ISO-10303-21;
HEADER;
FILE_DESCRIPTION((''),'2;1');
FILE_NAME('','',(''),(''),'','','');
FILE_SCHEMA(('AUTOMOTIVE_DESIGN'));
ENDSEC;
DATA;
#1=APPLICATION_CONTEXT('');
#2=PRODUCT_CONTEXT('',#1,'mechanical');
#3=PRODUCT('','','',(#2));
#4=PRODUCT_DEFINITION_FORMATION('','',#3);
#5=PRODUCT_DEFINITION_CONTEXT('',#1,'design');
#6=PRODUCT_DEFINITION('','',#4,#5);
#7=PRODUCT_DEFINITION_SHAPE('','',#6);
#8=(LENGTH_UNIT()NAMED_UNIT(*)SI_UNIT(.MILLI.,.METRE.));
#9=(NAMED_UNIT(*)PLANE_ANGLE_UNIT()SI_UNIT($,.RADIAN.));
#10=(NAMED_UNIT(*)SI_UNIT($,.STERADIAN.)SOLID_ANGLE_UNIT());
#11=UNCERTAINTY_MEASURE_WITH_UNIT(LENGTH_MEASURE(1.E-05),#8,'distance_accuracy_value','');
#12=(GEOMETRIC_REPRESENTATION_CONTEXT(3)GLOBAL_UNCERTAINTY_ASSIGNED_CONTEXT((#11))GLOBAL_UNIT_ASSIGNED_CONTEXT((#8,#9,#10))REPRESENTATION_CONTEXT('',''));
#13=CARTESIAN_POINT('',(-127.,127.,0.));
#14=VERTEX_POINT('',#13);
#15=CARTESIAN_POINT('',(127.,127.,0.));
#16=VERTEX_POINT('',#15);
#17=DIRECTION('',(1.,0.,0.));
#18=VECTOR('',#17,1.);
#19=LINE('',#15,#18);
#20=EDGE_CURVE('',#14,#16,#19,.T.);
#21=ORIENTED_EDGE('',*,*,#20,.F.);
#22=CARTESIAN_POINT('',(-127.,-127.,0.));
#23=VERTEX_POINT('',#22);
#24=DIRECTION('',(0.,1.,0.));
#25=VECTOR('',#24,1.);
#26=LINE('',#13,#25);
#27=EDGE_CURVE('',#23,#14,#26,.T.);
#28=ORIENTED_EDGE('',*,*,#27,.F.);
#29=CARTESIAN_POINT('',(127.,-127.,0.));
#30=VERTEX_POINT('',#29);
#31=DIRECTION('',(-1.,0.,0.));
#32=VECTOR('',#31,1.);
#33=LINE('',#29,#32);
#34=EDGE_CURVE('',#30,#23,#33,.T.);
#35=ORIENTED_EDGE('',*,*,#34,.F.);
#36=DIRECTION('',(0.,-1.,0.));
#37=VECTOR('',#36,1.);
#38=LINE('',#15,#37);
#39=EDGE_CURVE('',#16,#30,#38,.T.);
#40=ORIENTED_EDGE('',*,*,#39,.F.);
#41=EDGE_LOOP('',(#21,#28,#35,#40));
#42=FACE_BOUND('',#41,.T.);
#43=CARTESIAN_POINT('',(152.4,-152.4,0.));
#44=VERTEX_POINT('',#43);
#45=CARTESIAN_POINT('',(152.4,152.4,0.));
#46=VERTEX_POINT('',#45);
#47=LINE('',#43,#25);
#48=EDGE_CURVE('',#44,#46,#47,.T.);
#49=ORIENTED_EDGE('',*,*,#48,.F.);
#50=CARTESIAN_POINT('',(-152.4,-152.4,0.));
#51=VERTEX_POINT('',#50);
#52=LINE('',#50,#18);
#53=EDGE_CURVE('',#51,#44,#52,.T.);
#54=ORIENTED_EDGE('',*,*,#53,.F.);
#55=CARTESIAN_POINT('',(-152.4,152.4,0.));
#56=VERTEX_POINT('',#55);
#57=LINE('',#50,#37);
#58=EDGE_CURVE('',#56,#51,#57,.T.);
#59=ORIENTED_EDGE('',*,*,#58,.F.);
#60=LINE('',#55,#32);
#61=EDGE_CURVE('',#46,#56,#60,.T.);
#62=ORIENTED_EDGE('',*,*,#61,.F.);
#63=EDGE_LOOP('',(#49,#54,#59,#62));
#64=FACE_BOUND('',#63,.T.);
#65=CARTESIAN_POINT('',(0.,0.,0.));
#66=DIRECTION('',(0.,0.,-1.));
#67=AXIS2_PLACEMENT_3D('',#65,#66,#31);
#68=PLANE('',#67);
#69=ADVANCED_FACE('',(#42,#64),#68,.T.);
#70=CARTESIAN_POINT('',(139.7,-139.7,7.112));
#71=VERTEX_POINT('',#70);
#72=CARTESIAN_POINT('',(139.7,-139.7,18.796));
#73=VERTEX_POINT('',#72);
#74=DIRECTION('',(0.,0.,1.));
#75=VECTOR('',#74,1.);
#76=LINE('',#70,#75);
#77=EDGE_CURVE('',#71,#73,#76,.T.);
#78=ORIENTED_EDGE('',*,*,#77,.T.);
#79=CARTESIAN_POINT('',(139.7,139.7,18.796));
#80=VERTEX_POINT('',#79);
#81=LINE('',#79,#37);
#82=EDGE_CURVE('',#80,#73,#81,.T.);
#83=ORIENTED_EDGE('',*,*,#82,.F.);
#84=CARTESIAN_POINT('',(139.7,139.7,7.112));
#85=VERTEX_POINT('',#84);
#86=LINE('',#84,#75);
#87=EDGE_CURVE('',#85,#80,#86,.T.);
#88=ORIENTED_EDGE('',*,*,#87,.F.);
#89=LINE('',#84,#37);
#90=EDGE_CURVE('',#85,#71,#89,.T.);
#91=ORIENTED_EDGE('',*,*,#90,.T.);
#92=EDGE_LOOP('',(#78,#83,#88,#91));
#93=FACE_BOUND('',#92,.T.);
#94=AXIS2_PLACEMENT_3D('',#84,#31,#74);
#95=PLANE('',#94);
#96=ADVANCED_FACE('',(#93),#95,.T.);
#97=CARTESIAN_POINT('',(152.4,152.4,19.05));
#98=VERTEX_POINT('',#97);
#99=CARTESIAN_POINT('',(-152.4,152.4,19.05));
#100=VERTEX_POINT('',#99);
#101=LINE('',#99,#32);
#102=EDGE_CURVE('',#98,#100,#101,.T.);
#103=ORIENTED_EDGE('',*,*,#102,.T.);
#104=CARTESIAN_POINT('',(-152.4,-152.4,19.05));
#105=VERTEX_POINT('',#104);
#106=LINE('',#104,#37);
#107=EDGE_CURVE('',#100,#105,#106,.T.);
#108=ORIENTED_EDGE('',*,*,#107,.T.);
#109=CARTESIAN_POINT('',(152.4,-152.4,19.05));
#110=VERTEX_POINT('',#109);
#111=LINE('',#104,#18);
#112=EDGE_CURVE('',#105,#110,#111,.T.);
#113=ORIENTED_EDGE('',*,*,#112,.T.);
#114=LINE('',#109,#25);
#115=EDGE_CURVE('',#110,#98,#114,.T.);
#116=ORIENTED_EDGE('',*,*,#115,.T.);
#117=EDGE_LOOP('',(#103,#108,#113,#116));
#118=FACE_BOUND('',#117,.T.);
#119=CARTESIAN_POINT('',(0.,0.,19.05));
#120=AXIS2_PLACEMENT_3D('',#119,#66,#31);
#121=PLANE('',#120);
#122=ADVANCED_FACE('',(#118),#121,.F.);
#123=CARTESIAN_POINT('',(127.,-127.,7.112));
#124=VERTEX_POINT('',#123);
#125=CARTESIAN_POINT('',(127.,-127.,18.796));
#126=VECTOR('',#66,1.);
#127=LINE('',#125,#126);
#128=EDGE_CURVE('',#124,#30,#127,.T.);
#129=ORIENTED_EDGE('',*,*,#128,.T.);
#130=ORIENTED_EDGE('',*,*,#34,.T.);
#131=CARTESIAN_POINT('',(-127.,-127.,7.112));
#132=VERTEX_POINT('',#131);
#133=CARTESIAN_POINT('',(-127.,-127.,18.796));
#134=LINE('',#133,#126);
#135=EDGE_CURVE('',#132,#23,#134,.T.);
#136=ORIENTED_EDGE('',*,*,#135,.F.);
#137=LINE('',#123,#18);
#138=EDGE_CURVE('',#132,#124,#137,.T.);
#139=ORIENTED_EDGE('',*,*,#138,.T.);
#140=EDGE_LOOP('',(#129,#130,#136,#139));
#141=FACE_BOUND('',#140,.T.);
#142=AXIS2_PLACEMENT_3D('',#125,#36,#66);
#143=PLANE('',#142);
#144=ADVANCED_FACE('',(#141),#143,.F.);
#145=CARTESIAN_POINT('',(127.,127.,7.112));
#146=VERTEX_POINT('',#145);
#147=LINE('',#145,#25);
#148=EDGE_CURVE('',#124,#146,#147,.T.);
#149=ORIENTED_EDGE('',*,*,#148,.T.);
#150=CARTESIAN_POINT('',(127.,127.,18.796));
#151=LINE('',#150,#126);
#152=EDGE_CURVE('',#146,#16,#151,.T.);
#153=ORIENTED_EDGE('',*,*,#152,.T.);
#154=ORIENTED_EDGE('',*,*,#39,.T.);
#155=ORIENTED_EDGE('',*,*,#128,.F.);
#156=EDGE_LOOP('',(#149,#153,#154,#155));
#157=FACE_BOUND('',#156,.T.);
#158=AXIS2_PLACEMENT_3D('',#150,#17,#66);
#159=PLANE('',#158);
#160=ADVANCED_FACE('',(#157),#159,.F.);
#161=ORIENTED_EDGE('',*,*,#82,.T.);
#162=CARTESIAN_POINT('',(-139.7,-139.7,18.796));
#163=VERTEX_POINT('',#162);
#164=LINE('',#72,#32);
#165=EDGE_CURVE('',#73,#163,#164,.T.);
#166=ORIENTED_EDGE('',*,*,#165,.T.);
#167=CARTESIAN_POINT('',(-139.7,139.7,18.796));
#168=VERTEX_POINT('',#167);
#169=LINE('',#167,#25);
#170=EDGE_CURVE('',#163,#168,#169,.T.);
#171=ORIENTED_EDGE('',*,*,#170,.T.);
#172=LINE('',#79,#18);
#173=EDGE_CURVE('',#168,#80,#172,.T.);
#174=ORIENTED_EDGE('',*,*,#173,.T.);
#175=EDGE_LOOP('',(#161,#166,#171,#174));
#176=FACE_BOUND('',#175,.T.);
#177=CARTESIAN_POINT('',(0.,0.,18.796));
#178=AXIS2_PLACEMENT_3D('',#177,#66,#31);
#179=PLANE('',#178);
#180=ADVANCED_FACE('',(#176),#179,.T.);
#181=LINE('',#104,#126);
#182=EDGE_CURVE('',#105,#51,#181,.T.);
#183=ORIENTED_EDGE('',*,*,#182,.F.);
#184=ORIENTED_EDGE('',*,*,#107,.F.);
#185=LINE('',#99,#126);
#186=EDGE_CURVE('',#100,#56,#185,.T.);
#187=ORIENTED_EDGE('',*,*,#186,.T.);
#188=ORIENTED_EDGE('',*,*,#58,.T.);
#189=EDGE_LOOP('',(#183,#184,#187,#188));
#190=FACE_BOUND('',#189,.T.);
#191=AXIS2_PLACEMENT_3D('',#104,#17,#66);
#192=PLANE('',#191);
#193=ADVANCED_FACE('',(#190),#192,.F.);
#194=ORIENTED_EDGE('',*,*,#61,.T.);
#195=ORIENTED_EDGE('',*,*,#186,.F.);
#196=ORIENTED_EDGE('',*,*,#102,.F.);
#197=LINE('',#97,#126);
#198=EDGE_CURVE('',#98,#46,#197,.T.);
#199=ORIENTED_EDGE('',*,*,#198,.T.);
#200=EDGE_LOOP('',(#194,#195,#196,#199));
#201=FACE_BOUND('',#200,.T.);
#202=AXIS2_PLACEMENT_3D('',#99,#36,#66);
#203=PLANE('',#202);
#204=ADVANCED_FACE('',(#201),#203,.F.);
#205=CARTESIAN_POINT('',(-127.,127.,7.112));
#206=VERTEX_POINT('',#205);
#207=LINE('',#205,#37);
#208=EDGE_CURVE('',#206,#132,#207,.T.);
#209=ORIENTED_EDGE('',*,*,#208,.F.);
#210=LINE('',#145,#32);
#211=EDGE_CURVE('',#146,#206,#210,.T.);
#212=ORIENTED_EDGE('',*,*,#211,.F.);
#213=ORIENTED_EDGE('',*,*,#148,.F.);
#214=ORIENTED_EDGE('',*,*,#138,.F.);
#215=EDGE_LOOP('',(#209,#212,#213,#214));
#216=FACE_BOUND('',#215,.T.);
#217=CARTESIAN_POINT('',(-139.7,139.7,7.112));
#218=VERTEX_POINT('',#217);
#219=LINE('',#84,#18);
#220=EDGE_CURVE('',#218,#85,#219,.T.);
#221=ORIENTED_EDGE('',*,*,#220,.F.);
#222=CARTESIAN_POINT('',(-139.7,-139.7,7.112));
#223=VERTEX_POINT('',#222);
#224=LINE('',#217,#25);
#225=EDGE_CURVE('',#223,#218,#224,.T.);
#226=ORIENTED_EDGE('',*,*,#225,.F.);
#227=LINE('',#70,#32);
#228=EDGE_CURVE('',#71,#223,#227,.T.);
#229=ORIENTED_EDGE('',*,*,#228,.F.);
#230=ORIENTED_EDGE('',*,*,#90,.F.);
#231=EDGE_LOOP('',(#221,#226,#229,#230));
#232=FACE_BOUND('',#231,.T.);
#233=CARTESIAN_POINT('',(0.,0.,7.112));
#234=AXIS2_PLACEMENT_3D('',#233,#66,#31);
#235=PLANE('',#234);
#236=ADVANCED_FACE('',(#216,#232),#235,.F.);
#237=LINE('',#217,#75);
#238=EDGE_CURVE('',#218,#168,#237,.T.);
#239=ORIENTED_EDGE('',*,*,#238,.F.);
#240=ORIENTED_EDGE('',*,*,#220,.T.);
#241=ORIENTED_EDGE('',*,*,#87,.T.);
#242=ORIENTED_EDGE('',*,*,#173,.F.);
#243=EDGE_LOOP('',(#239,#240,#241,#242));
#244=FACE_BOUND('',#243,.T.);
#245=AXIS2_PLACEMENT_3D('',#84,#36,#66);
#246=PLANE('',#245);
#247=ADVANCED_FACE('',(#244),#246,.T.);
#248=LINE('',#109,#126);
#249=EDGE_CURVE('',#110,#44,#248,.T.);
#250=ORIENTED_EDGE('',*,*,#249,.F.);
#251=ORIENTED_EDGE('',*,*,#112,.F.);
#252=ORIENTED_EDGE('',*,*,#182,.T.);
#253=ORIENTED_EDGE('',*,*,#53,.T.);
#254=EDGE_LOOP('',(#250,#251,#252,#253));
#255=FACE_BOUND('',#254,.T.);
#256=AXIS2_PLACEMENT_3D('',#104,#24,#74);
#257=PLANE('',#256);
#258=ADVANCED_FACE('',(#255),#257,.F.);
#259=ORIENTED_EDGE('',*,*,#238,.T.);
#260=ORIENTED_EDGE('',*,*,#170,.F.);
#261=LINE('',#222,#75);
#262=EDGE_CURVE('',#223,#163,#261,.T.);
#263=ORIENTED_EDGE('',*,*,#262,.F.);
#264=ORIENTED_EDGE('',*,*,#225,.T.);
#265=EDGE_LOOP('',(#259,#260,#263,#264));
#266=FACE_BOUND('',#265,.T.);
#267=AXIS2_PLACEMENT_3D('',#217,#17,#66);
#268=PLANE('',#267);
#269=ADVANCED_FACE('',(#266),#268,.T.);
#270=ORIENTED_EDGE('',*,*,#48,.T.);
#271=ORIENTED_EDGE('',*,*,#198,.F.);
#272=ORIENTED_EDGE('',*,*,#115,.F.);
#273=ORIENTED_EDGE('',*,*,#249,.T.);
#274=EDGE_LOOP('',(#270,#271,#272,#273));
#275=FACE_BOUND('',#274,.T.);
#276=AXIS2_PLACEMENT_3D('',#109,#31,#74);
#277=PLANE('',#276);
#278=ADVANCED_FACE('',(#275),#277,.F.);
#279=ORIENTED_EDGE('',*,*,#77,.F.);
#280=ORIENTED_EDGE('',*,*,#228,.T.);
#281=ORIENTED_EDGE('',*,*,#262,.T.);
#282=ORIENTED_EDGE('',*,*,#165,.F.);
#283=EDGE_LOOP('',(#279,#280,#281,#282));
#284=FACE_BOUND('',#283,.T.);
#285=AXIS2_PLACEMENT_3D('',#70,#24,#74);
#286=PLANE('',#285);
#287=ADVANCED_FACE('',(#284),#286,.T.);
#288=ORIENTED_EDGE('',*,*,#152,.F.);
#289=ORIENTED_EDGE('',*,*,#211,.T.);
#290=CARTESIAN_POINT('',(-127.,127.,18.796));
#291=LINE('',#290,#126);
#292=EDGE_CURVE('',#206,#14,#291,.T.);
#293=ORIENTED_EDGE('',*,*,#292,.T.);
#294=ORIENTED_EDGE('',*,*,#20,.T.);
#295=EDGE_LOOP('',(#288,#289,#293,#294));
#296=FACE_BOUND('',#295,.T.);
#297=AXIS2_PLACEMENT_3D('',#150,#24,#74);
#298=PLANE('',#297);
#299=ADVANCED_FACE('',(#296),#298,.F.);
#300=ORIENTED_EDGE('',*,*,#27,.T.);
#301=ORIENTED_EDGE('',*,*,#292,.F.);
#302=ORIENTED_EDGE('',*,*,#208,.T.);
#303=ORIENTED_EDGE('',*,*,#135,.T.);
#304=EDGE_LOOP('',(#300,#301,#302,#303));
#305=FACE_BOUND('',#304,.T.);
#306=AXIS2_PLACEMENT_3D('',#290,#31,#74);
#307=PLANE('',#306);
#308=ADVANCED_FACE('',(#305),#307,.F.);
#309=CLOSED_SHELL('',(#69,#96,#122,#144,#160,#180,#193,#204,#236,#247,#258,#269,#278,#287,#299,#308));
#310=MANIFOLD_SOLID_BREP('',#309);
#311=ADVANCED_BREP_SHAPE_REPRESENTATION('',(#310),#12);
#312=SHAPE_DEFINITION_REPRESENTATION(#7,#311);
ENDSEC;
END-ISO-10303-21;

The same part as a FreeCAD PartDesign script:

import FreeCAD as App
import Part
import Sketcher
from FreeCAD import Vector
Q = App.Units.Quantity


def add_polygon(sketch, points):
    """Adds a closed chain of lines whose ends are joined by coincident constraints."""
    first, n = sketch.GeometryCount, len(points)
    for a, b in zip(points, points[1:] + points[:1]):
        sketch.addGeometry(Part.LineSegment(App.Vector(*a, 0), App.Vector(*b, 0)), False)
    for i in range(n):
        sketch.addConstraint(Sketcher.Constraint("Coincident", first + i, 2, first + (i + 1) % n, 1))

doc = App.newDocument("Part")
params = doc.addObject("Spreadsheet::Sheet", "Params")
for row, (alias, value) in enumerate([
    ("sketch1_width", "12 in"),
    ("pad1_length", "0.75 in"),
    ("sketch2_width", "10 in"),
    ("pocket1_length", "0.74 in"),
    ("sketch3_width", "11 in"),
    ("pocket2_length", "0.46 in"),
], start=1):
    params.set(f"A{row}", alias)
    params.set(f"B{row}", "=" + value)
    params.setAlias(f"B{row}", alias)

body = doc.addObject("PartDesign::Body", "Body")

# Sketch on XY plane
sketch1 = doc.addObject("Sketcher::SketchObject", "Sketch")
body.addObject(sketch1)
sketch1.AttachmentSupport = (doc.XY_Plane, [""])
sketch1.MapMode = "FlatFace"
add_polygon(sketch1, [(-152.4, 152.4), (-152.4, -152.4), (152.4, -152.4), (152.4, 152.4)])  # lines 0-3
sketch1.addConstraint(Sketcher.Constraint("Vertical", 0))
sketch1.addConstraint(Sketcher.Constraint("Horizontal", 1))
sketch1.addConstraint(Sketcher.Constraint("Vertical", 2))
sketch1.addConstraint(Sketcher.Constraint("Horizontal", 3))
sketch1.addConstraint(Sketcher.Constraint("Symmetric", 0, 2, 2, 2, -1, 1))
sketch1.addConstraint(Sketcher.Constraint("Equal", 3, 0))
sketch1.addConstraint(Sketcher.Constraint("DistanceX", 1, 1, 1, 2, Q("12 in")))
sketch1.setExpression("Constraints[10]", "Params.sketch1_width")
pad1 = doc.addObject("PartDesign::Pad", "Pad")
body.addObject(pad1)
pad1.Profile = sketch1
pad1.setExpression("Length", "Params.pad1_length")

# Sketch on XY plane
sketch2 = doc.addObject("Sketcher::SketchObject", "Sketch001")
body.addObject(sketch2)
sketch2.AttachmentSupport = (doc.XY_Plane, [""])
sketch2.MapMode = "FlatFace"
add_polygon(sketch2, [(127, 127), (127, -127), (-127, -127), (-127, 127)])  # lines 0-3
sketch2.addConstraint(Sketcher.Constraint("Vertical", 0))
sketch2.addConstraint(Sketcher.Constraint("Horizontal", 1))
sketch2.addConstraint(Sketcher.Constraint("Vertical", 2))
sketch2.addConstraint(Sketcher.Constraint("Horizontal", 3))
sketch2.addConstraint(Sketcher.Constraint("Symmetric", 0, 2, 2, 2, -1, 1))
sketch2.addConstraint(Sketcher.Constraint("Equal", 3, 0))
sketch2.addConstraint(Sketcher.Constraint("DistanceX", 1, 2, 1, 1, Q("10 in")))
sketch2.setExpression("Constraints[10]", "Params.sketch2_width")
pocket1 = doc.addObject("PartDesign::Pocket", "Pocket")
body.addObject(pocket1)
pocket1.Profile = sketch2
pocket1.setExpression("Length", "Params.pocket1_length")
pocket1.Reversed = True

# Sketch on XY plane
sketch3 = doc.addObject("Sketcher::SketchObject", "Sketch002")
body.addObject(sketch3)
sketch3.AttachmentSupport = (doc.XY_Plane, [""])
sketch3.MapMode = "FlatFace"
sketch3.AttachmentOffset = App.Placement(Vector(0, 0, 0.74 * 25.4), App.Rotation())
add_polygon(sketch3, [(139.7, 139.7), (139.7, -139.7), (-139.7, -139.7), (-139.7, 139.7)])  # lines 0-3
sketch3.addConstraint(Sketcher.Constraint("Vertical", 0))
sketch3.addConstraint(Sketcher.Constraint("Horizontal", 1))
sketch3.addConstraint(Sketcher.Constraint("Vertical", 2))
sketch3.addConstraint(Sketcher.Constraint("Horizontal", 3))
sketch3.addConstraint(Sketcher.Constraint("Symmetric", 0, 2, 2, 2, -1, 1))
sketch3.addConstraint(Sketcher.Constraint("Equal", 3, 0))
sketch3.addConstraint(Sketcher.Constraint("DistanceX", 1, 2, 1, 1, Q("11 in")))
sketch3.setExpression("Constraints[10]", "Params.sketch3_width")
pocket2 = doc.addObject("PartDesign::Pocket", "Pocket001")
body.addObject(pocket2)
pocket2.Profile = sketch3
pocket2.setExpression("Length", "Params.pocket2_length")

doc.recompute()
